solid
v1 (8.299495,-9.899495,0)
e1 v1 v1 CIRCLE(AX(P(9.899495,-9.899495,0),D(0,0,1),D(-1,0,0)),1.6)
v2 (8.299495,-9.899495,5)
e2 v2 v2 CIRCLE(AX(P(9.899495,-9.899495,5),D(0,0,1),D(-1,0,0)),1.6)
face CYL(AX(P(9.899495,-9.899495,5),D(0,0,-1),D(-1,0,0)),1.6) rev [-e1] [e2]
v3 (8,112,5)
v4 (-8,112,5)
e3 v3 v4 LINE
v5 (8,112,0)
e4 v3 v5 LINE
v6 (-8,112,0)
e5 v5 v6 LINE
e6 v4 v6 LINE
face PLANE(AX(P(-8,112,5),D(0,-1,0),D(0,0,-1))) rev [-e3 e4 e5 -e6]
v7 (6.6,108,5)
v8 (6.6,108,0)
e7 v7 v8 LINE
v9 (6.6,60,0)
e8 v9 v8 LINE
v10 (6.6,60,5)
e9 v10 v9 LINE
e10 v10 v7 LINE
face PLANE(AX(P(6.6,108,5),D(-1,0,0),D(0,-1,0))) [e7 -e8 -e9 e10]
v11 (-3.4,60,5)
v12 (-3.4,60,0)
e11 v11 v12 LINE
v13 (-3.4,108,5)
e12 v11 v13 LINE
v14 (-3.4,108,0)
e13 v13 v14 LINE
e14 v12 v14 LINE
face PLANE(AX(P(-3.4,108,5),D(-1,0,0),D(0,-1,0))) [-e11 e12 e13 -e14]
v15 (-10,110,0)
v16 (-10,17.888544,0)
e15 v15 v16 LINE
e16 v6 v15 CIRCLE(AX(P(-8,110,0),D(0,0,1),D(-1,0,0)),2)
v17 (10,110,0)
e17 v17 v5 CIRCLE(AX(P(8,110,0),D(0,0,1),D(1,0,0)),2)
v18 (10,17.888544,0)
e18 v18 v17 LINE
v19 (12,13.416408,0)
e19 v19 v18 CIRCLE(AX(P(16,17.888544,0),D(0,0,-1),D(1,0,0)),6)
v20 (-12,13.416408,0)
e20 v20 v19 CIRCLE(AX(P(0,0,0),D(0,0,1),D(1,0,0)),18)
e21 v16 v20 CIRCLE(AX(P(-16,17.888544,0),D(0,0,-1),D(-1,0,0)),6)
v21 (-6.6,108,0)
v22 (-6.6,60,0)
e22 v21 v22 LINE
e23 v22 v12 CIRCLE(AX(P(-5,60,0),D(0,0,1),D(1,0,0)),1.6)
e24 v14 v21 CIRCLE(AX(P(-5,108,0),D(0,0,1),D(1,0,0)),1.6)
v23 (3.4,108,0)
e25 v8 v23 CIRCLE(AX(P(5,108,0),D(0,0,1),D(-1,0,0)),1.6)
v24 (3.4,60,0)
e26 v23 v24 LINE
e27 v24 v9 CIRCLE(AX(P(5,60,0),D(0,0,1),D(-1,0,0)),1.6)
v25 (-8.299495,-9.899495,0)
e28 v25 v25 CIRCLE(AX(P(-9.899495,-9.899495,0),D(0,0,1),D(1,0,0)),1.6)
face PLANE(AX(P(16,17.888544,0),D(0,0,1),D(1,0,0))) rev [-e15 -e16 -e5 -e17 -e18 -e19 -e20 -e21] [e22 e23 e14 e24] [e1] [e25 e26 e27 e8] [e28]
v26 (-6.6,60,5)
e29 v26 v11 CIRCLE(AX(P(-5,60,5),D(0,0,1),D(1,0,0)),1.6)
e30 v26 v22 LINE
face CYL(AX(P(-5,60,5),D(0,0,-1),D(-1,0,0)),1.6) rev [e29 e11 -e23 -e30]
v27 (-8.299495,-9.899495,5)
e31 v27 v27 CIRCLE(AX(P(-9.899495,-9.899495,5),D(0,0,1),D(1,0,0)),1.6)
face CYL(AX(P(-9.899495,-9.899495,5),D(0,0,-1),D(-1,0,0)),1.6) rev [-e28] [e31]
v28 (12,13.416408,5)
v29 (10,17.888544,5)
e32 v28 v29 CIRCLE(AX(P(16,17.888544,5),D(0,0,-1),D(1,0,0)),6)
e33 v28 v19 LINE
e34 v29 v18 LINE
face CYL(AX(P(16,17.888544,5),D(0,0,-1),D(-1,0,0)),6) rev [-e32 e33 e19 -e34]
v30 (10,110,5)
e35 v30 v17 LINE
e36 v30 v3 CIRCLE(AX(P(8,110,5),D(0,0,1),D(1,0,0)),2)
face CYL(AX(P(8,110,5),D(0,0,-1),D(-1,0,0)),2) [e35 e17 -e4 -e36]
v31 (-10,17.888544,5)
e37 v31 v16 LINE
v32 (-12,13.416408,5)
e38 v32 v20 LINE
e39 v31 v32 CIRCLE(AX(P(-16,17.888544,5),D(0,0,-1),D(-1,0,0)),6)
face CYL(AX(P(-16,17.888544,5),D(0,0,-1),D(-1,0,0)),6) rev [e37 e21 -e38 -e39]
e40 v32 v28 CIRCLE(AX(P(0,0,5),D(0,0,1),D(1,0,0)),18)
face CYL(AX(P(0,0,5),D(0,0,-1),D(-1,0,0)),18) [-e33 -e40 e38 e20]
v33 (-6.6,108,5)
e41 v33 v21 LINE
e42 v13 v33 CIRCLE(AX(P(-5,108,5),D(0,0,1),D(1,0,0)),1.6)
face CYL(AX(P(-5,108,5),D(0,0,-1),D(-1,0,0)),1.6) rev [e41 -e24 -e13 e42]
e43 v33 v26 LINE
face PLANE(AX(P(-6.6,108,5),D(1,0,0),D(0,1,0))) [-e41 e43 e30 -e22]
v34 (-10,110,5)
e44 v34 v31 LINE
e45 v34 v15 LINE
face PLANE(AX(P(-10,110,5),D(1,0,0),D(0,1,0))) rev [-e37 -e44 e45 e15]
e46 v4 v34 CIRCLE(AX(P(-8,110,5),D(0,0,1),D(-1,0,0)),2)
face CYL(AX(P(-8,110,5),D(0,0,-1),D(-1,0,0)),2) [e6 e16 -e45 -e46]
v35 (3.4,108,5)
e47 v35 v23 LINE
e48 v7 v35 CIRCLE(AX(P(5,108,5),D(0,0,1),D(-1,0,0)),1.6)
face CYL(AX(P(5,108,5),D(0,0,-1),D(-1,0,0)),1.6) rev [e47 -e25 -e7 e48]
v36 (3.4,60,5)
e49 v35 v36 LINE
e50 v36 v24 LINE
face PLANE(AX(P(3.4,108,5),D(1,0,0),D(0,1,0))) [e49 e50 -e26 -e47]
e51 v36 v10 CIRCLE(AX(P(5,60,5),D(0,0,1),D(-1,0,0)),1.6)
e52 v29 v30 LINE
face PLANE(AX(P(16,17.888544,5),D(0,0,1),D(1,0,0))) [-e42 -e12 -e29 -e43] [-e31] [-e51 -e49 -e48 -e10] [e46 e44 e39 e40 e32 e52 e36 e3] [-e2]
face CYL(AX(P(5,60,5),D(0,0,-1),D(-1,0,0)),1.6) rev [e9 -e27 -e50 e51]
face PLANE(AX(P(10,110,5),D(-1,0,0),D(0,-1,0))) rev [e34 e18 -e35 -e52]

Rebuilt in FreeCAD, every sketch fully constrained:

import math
import FreeCAD as App
import Part
import Sketcher

doc = App.newDocument("Part")
body = doc.addObject("PartDesign::Body", "Body")

sketch1 = doc.addObject("Sketcher::SketchObject", "Sketch")
body.addObject(sketch1)
sketch1.AttachmentSupport = (doc.XY_Plane, [""])
sketch1.MapMode = "FlatFace"
sketch1.addGeometry([
    Part.LineSegment(App.Vector(-10, 110, 0), App.Vector(-10, 17.888544, 0)),
    Part.ArcOfCircle(Part.Circle(App.Vector(-16, 17.888544, 0), App.Vector(0, 0, 1), 6), math.radians(-48.189685), math.radians(0)),
    Part.ArcOfCircle(Part.Circle(App.Vector(0, 0, 0), App.Vector(0, 0, 1), 18), math.radians(131.810315), math.radians(408.189685)),
    Part.ArcOfCircle(Part.Circle(App.Vector(16, 17.888544, 0), App.Vector(0, 0, 1), 6), math.radians(180), math.radians(228.189685)),
    Part.LineSegment(App.Vector(10, 17.888544, 0), App.Vector(10, 110, 0)),
    Part.ArcOfCircle(Part.Circle(App.Vector(8, 110, 0), App.Vector(0, 0, 1), 2), math.radians(0), math.radians(90)),
    Part.LineSegment(App.Vector(8, 112, 0), App.Vector(-8, 112, 0)),
    Part.ArcOfCircle(Part.Circle(App.Vector(-8, 110, 0), App.Vector(0, 0, 1), 2), math.radians(90), math.radians(180)),
    Part.Circle(App.Vector(-9.899495, -9.899495, 0), App.Vector(0, 0, 1), 1.6),
    Part.Circle(App.Vector(9.899495, -9.899495, 0), App.Vector(0, 0, 1), 1.6),
    Part.ArcOfCircle(Part.Circle(App.Vector(-5, 108, 0), App.Vector(0, 0, 1), 1.6), math.radians(0), math.radians(180)),
    Part.LineSegment(App.Vector(-3.4, 108, 0), App.Vector(-3.4, 60, 0)),
    Part.ArcOfCircle(Part.Circle(App.Vector(-5, 60, 0), App.Vector(0, 0, 1), 1.6), math.radians(180), math.radians(360)),
    Part.LineSegment(App.Vector(-6.6, 60, 0), App.Vector(-6.6, 108, 0)),
    Part.LineSegment(App.Vector(3.4, 60, 0), App.Vector(3.4, 108, 0)),
    Part.ArcOfCircle(Part.Circle(App.Vector(5, 108, 0), App.Vector(0, 0, 1), 1.6), math.radians(0), math.radians(180)),
    Part.LineSegment(App.Vector(6.6, 108, 0), App.Vector(6.6, 60, 0)),
    Part.ArcOfCircle(Part.Circle(App.Vector(5, 60, 0), App.Vector(0, 0, 1), 1.6), math.radians(180), math.radians(360)),
], False)
sketch1.addConstraint([
    Sketcher.Constraint("Tangent", 0, 2, 1, 2),
    Sketcher.Constraint("Tangent", 1, 1, 2, 1),
    Sketcher.Constraint("Tangent", 2, 2, 3, 2),
    Sketcher.Constraint("Tangent", 3, 1, 4, 1),
    Sketcher.Constraint("Tangent", 4, 2, 5, 1),
    Sketcher.Constraint("Tangent", 5, 2, 6, 1),
    Sketcher.Constraint("Tangent", 6, 2, 7, 1),
    Sketcher.Constraint("Tangent", 7, 2, 0, 1),
    Sketcher.Constraint("Tangent", 10, 1, 11, 1),
    Sketcher.Constraint("Tangent", 11, 2, 12, 2),
    Sketcher.Constraint("Tangent", 12, 1, 13, 1),
    Sketcher.Constraint("Tangent", 13, 2, 10, 2),
    Sketcher.Constraint("Tangent", 14, 2, 15, 2),
    Sketcher.Constraint("Tangent", 15, 1, 16, 1),
    Sketcher.Constraint("Tangent", 16, 2, 17, 2),
    Sketcher.Constraint("Tangent", 17, 1, 14, 1),
    Sketcher.Constraint("Vertical", 0),
    Sketcher.Constraint("Vertical", 4),
    Sketcher.Constraint("Horizontal", 6),
    Sketcher.Constraint("Vertical", 11),
    Sketcher.Constraint("Vertical", 13),
    Sketcher.Constraint("Vertical", 14),
    Sketcher.Constraint("Vertical", 16),
    Sketcher.Constraint("Coincident", 2, 3, -1, 1),
    Sketcher.Constraint("Equal", 1, 3),
    Sketcher.Constraint("Equal", 5, 7),
    Sketcher.Constraint("Equal", 8, 9),
    Sketcher.Constraint("Equal", 9, 10),
    Sketcher.Constraint("Equal", 12, 15),
    Sketcher.Constraint("Symmetric", 8, 3, 9, 3, -2),
    Sketcher.Constraint("Symmetric", 10, 3, 15, 3, -2),
    Sketcher.Constraint("Horizontal", 1, 3, 3, 3),
    Sketcher.Constraint("Horizontal", 12, 3, 17, 3),
    Sketcher.Constraint("Radius", 1, 6.0),
    Sketcher.Constraint("Radius", 2, 18.0),
    Sketcher.Constraint("Radius", 5, 2.0),
    Sketcher.Constraint("Diameter", 8, 3.2),
    Sketcher.Constraint("DistanceX", 6, 2, 6, 1, 16.0),
    Sketcher.Constraint("DistanceY", 11, 2, 11, 1, 48.0),
    Sketcher.Constraint("DistanceY", -1, 1, 5, 3, 110.0),
    Sketcher.Constraint("DistanceX", 10, 3, -1, 1, 5.0),
    Sketcher.Constraint("DistanceY", -1, 1, 10, 3, 108.0),
    Sketcher.Constraint("DistanceY", 8, 3, 1, 3, 27.788039),
    Sketcher.Constraint("DistanceX", 8, 3, 9, 3, 19.79899),
])
pad1 = doc.addObject("PartDesign::Pad", "Pad")
body.addObject(pad1)
pad1.Profile = sketch1
pad1.Length = 5

doc.recompute()
